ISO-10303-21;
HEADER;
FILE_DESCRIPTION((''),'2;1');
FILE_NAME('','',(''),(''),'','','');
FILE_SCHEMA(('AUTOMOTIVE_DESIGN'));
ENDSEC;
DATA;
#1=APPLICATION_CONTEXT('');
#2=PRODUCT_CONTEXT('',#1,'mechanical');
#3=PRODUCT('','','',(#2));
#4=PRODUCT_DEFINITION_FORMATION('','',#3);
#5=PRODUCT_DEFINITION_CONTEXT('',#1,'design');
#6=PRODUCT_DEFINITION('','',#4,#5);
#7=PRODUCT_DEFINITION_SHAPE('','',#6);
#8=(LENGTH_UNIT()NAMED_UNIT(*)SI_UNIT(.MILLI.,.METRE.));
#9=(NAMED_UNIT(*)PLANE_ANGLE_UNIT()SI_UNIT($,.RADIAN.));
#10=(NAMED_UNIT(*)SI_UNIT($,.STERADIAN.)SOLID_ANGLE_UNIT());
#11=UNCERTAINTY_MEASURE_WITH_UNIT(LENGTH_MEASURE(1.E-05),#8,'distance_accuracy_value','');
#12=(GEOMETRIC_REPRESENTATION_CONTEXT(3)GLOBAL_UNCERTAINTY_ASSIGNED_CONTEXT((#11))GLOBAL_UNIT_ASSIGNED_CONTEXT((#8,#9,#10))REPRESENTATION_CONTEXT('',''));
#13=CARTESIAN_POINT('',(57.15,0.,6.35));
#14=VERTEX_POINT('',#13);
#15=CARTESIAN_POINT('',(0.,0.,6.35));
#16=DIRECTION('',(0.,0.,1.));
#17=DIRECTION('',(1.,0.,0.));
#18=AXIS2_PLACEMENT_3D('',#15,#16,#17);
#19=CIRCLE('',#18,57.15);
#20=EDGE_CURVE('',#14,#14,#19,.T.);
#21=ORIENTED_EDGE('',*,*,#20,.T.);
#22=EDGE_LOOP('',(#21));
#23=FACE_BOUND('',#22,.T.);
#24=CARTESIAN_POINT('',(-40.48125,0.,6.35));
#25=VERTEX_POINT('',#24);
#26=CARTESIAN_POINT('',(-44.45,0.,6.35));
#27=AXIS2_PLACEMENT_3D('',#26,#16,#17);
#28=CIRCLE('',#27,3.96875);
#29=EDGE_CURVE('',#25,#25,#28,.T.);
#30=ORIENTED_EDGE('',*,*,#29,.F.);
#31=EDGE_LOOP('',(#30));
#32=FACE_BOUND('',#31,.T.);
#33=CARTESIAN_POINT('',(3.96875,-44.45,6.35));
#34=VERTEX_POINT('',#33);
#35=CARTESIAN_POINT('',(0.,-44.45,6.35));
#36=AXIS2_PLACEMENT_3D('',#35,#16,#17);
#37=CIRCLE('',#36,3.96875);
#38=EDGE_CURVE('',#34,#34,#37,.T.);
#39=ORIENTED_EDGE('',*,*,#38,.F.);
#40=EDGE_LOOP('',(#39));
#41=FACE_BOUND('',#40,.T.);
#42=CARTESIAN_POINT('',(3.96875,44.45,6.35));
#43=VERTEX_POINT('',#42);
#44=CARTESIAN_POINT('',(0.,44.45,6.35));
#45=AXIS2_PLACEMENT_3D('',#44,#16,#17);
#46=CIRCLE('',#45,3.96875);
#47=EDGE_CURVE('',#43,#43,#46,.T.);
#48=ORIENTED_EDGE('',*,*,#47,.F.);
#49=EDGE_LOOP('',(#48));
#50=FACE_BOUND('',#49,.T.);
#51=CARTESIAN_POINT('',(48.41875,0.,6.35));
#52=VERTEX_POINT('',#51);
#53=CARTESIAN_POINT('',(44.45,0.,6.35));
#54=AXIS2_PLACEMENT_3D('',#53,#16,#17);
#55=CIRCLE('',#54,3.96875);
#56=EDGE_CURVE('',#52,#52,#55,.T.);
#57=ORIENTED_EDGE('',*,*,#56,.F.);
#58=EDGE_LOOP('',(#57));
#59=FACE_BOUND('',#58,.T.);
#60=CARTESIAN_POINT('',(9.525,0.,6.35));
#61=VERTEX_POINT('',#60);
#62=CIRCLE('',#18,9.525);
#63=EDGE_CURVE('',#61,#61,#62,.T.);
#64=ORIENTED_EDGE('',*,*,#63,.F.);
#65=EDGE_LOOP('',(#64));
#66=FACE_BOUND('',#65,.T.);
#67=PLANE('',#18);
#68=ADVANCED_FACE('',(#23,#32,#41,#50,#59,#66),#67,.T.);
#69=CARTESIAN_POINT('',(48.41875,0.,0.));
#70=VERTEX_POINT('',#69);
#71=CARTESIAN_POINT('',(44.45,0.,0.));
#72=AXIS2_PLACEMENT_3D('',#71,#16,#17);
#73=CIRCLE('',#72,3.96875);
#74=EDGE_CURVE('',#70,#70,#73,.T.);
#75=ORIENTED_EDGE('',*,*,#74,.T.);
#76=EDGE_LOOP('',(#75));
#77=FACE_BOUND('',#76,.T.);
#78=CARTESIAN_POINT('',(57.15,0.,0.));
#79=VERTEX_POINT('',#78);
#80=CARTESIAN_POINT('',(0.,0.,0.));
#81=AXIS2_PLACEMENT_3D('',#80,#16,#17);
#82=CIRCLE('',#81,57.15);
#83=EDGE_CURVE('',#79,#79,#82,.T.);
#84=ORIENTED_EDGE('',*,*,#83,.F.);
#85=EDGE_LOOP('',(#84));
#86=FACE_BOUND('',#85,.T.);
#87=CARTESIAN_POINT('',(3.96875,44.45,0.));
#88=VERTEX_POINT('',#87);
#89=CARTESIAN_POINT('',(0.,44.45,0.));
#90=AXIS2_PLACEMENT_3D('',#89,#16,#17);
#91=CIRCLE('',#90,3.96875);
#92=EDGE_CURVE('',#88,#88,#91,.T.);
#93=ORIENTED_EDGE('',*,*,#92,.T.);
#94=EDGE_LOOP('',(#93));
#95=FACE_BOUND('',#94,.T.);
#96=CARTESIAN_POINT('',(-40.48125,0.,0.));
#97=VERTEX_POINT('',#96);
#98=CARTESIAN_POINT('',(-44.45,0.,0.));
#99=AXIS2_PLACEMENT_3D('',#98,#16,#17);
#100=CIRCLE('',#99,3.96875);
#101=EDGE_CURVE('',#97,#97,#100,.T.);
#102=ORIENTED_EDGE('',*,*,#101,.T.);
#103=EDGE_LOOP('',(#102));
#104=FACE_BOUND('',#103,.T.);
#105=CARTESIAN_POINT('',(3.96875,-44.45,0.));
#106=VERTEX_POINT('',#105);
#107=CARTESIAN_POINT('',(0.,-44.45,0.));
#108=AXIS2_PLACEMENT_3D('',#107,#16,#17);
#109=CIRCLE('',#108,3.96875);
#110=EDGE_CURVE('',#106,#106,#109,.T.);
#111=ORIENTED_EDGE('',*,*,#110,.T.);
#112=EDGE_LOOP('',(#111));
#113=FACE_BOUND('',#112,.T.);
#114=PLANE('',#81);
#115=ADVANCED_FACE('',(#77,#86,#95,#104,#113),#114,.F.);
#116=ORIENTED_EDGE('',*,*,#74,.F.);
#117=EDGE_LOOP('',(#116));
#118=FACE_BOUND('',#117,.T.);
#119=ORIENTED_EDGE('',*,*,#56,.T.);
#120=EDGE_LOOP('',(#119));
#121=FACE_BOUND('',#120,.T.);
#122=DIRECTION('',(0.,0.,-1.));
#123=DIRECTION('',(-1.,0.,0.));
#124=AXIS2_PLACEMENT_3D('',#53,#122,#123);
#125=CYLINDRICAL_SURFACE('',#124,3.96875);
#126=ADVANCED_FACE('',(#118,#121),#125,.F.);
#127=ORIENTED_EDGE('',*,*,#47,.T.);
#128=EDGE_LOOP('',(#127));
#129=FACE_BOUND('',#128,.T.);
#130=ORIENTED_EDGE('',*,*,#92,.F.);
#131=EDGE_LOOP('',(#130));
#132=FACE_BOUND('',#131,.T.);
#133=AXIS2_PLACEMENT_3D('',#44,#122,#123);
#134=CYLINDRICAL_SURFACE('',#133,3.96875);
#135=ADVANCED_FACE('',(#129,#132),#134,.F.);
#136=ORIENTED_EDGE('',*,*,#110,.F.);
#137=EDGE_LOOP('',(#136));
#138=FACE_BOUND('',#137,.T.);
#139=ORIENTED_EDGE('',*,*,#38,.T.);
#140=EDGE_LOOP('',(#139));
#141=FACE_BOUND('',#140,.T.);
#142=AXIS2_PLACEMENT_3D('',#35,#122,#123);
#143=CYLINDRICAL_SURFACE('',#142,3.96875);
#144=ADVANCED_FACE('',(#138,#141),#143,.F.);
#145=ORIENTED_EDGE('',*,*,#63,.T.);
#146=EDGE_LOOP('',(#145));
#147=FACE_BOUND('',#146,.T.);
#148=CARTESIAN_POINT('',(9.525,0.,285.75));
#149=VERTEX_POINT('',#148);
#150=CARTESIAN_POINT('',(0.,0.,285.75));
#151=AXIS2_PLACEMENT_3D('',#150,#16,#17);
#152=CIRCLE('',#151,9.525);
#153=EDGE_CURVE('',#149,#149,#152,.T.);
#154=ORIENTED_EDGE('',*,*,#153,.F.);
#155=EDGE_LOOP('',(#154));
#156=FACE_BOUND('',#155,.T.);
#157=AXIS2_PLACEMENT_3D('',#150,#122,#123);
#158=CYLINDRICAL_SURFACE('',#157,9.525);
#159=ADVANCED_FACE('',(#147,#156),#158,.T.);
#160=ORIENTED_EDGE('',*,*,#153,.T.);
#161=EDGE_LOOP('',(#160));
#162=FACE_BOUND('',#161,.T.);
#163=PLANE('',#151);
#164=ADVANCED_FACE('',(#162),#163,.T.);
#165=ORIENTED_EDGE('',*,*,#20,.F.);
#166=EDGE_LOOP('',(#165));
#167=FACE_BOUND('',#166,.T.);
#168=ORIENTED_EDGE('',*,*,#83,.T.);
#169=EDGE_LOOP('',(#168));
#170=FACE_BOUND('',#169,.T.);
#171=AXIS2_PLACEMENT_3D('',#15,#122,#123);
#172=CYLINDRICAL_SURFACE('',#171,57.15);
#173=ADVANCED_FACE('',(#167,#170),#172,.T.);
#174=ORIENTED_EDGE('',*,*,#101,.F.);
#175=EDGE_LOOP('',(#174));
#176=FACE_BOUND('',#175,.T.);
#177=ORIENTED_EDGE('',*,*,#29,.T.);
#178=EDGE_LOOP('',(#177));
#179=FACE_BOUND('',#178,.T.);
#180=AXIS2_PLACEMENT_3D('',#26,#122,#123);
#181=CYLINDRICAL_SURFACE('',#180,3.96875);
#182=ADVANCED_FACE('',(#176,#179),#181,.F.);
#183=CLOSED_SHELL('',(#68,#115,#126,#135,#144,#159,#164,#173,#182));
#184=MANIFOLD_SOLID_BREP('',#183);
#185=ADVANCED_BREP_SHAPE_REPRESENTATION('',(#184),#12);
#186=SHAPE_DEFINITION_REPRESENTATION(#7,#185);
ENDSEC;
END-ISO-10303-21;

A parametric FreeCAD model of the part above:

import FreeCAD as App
import Part
import Sketcher
Q = App.Units.Quantity

doc = App.newDocument("Part")
body = doc.addObject("PartDesign::Body", "Body")

# Sketch on XY plane
sketch1 = body.newObject("Sketcher::SketchObject", "Sketch")
sketch1.AttachmentSupport = (doc.getObject("XY_Plane"), [""])
sketch1.MapMode = "FlatFace"
sketch1.addGeometry([
    Part.Circle(App.Vector(0, 0, 0), App.Vector(0, 0, 1), 57.1),  # 0
    Part.Circle(App.Vector(0, -44.5, 0), App.Vector(0, 0, 1), 4),  # 1
    Part.Circle(App.Vector(-44.5, 0, 0), App.Vector(0, 0, 1), 4),  # 2
    Part.Circle(App.Vector(44.5, 0, 0), App.Vector(0, 0, 1), 4),  # 3
    Part.Circle(App.Vector(0, 44.5, 0), App.Vector(0, 0, 1), 4),  # 4
], False)
sketch1.addConstraint([
    Sketcher.Constraint("Coincident", 0, 3, -1, 1),
    Sketcher.Constraint("Equal", 1, 2),
    Sketcher.Constraint("Equal", 2, 3),
    Sketcher.Constraint("Equal", 3, 4),
    Sketcher.Constraint("Symmetric", 2, 3, 3, 3, -1, 1),
    Sketcher.Constraint("Symmetric", 1, 3, 4, 3, -1, 1),
    Sketcher.Constraint("PointOnObject", 1, 3, -2),
    Sketcher.Constraint("PointOnObject", 2, 3, -1),
    Sketcher.Constraint("Diameter", 0, Q("4.5 in")),
    Sketcher.Constraint("Diameter", 1, Q("0.3125 in")),
    Sketcher.Constraint("DistanceX", 2, 3, 3, 3, Q("3.5 in")),
    Sketcher.Constraint("DistanceY", 1, 3, 4, 3, Q("3.5 in")),
])
pad1 = body.newObject("PartDesign::Pad", "Pad")
pad1.Profile = sketch1
pad1.Length = Q("0.25 in")

# Sketch on XY plane
sketch2 = body.newObject("Sketcher::SketchObject", "Sketch001")
sketch2.AttachmentSupport = (doc.getObject("XY_Plane"), [""])
sketch2.MapMode = "FlatFace"
sketch2.AttachmentOffset = App.Placement(App.Vector(0, 0, 0.25 * 25.4), App.Rotation())
sketch2.addGeometry(Part.Circle(App.Vector(0, 0, 0), App.Vector(0, 0, 1), 10), False)
sketch2.addConstraint([
    Sketcher.Constraint("Coincident", 0, 3, -1, 1),
    Sketcher.Constraint("Diameter", 0, Q("0.75 in")),
])
pad2 = body.newObject("PartDesign::Pad", "Pad001")
pad2.Profile = sketch2
pad2.Length = Q("11 in")

doc.recompute()
